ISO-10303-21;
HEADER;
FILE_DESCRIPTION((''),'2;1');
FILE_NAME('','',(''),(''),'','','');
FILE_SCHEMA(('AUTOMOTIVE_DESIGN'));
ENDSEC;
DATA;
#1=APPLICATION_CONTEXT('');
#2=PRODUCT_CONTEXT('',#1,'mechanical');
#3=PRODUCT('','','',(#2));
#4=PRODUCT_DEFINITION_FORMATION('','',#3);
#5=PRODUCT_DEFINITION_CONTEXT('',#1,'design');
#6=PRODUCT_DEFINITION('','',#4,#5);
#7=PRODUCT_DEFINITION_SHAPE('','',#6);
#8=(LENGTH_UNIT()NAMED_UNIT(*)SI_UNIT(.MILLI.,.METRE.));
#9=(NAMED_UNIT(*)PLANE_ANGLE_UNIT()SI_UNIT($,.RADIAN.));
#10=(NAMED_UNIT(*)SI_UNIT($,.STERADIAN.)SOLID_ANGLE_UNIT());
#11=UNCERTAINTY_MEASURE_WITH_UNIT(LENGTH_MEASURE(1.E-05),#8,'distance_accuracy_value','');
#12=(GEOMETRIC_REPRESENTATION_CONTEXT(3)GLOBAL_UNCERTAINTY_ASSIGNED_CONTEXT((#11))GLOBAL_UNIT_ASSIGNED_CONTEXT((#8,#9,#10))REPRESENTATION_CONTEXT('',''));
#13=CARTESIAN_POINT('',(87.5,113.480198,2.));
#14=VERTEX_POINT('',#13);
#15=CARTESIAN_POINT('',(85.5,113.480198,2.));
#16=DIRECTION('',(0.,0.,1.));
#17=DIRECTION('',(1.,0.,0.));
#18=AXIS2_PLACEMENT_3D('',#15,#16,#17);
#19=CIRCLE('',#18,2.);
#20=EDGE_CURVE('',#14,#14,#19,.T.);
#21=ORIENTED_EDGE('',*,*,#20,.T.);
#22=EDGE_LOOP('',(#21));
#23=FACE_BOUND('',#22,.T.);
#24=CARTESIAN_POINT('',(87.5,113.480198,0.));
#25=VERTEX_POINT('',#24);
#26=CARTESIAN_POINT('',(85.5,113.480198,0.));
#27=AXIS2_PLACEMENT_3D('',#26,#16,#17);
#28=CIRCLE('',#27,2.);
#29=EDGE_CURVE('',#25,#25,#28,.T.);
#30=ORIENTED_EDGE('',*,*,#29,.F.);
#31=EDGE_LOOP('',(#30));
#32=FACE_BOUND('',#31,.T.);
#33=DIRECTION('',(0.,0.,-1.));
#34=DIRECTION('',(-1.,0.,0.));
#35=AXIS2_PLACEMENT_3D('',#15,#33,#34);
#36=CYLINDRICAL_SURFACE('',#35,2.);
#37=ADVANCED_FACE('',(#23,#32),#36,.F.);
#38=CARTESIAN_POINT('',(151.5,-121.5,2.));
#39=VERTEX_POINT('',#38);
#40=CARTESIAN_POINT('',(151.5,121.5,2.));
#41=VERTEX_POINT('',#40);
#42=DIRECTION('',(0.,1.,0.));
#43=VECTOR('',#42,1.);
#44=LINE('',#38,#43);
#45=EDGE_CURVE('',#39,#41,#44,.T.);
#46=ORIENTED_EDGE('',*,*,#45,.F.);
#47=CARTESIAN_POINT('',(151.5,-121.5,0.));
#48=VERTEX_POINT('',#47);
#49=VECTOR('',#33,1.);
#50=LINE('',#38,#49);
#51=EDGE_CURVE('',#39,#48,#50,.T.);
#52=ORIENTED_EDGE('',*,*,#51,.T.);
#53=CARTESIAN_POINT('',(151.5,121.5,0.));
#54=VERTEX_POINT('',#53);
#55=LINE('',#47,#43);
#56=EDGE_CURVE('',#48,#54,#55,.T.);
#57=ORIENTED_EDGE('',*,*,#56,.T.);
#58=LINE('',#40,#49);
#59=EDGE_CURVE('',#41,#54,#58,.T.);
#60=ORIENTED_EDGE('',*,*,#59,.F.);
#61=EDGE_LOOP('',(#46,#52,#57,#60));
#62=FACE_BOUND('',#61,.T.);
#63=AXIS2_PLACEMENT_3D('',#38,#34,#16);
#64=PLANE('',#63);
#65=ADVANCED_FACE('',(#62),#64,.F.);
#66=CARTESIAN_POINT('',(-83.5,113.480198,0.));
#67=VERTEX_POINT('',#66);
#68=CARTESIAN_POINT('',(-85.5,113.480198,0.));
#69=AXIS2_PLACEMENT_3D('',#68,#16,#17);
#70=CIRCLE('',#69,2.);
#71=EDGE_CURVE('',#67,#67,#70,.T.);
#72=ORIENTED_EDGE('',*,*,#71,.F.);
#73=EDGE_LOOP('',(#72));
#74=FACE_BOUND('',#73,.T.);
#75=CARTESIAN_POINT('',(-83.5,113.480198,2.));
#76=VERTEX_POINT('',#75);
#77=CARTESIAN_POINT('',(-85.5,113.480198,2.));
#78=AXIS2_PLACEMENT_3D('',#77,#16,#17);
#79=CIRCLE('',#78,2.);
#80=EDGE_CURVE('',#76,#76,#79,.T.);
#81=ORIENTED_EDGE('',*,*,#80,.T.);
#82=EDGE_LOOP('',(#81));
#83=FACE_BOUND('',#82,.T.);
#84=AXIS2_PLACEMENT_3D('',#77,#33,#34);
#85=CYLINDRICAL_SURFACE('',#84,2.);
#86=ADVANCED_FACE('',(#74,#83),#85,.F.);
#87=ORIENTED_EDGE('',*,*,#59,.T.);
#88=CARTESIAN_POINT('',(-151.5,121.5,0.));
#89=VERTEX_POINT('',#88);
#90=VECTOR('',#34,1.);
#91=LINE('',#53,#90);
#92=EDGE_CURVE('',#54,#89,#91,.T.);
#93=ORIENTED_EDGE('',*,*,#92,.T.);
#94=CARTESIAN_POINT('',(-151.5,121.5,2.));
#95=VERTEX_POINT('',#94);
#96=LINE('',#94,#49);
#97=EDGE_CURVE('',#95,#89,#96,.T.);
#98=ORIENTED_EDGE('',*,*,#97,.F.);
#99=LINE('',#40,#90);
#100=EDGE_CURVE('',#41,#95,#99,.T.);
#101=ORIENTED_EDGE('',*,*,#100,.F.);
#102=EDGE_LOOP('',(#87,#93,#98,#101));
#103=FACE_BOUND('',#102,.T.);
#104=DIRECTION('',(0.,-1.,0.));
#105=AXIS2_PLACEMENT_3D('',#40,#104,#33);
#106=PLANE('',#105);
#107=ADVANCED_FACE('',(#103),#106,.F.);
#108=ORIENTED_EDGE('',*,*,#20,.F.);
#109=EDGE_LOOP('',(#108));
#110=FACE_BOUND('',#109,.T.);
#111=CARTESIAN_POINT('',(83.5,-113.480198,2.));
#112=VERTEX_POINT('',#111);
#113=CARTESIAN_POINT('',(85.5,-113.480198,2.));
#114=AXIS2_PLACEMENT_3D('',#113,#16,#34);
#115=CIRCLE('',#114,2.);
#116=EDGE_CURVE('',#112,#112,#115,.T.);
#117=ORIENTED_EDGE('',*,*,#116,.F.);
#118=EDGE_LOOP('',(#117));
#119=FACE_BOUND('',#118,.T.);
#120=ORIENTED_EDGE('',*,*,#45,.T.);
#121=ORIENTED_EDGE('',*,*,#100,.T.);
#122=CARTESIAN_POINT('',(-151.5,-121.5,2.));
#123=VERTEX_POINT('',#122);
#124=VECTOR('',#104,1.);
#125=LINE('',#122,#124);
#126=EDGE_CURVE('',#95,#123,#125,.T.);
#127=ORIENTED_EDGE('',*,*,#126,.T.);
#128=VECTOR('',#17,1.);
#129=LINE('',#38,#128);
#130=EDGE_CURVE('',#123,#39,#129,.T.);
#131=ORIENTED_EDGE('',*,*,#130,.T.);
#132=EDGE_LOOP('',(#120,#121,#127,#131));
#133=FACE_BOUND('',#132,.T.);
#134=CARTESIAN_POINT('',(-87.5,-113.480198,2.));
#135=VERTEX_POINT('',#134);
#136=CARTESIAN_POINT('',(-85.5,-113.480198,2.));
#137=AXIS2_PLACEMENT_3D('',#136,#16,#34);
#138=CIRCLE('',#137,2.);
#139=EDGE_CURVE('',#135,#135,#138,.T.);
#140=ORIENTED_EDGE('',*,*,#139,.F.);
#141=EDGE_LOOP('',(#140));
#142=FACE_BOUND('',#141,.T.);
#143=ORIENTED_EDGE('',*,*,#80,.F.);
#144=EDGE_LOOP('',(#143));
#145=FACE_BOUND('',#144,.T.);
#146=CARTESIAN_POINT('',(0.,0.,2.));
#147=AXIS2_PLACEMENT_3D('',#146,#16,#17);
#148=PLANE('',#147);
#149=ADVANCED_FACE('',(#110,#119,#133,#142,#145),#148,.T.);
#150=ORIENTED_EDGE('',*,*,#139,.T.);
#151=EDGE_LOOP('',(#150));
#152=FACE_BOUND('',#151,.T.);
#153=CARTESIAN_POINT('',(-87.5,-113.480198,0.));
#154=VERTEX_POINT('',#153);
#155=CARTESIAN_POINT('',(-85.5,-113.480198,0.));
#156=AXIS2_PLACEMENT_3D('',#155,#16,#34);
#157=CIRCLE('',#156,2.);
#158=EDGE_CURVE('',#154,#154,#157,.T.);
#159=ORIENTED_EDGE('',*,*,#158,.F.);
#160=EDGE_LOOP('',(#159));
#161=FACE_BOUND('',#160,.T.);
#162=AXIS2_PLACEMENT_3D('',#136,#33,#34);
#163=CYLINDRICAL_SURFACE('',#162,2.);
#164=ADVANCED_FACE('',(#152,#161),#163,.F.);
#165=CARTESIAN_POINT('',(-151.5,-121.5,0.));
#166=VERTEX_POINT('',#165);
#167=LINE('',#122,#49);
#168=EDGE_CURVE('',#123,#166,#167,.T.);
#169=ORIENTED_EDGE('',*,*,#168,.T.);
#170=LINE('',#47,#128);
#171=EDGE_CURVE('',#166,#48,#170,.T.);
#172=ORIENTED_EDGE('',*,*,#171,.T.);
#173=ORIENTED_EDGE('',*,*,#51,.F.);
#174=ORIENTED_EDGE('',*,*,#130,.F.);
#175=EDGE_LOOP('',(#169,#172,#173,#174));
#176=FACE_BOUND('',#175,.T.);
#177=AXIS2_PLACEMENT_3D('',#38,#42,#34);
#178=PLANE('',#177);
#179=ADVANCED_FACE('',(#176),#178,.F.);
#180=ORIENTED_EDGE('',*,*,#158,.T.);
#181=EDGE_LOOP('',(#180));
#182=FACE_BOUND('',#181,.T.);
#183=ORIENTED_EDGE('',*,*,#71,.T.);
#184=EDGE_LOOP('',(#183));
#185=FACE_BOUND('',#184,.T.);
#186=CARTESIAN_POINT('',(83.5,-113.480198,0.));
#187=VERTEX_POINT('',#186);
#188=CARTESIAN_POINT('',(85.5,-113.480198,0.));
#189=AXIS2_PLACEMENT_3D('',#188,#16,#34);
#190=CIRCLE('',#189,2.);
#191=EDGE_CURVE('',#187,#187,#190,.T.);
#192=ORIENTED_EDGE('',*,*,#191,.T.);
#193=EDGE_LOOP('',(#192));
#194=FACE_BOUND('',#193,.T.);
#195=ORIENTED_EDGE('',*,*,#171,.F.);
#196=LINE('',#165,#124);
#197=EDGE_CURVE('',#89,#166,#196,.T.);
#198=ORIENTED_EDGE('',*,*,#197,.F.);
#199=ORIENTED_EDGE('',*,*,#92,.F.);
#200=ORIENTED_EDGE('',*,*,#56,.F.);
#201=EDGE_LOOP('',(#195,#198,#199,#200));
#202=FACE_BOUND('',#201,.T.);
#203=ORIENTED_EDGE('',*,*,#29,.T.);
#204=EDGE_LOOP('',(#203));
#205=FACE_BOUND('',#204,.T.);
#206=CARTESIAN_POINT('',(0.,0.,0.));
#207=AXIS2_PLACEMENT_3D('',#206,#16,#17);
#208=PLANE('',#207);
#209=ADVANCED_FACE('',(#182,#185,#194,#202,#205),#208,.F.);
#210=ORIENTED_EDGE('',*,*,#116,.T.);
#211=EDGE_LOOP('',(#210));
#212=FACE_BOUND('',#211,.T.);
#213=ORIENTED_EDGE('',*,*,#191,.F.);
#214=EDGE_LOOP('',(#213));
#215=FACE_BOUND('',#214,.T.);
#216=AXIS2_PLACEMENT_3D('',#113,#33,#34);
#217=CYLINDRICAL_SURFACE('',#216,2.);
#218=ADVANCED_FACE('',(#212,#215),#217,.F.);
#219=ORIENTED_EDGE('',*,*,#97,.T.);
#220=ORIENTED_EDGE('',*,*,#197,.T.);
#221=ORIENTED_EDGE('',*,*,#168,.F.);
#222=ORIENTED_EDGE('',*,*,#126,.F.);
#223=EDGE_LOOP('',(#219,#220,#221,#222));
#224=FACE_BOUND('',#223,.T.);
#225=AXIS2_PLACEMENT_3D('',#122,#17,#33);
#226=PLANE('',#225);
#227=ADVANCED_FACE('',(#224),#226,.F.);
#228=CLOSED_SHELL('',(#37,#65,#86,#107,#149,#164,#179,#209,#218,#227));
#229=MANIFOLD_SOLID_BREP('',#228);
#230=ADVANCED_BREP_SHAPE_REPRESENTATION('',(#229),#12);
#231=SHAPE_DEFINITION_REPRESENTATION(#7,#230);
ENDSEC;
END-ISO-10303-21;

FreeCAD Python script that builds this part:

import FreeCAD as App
import Part
import Sketcher


def add_polygon(sketch, points):
    """Adds a closed chain of lines whose ends are joined by coincident constraints."""
    first, n = sketch.GeometryCount, len(points)
    for a, b in zip(points, points[1:] + points[:1]):
        sketch.addGeometry(Part.LineSegment(App.Vector(*a, 0), App.Vector(*b, 0)), False)
    for i in range(n):
        sketch.addConstraint(Sketcher.Constraint("Coincident", first + i, 2, first + (i + 1) % n, 1))

doc = App.newDocument("Part")
body = doc.addObject("PartDesign::Body", "Body")

# Sketch on XY plane
sketch1 = body.newObject("Sketcher::SketchObject", "Sketch")
sketch1.AttachmentSupport = (doc.getObject("XY_Plane"), [""])
sketch1.MapMode = "FlatFace"
add_polygon(sketch1, [(-151.5, 121.5), (-151.5, -121.5), (151.5, -121.5), (151.5, 121.5)])  # lines 0-3
sketch1.addGeometry(Part.Circle(App.Vector(-85.5, -113.5, 0), App.Vector(0, 0, 1), 2), False)  # 4
sketch1.addGeometry(Part.Circle(App.Vector(85.5, -113.5, 0), App.Vector(0, 0, 1), 2), False)  # 5
sketch1.addGeometry(Part.Circle(App.Vector(-85.5, 113.5, 0), App.Vector(0, 0, 1), 2), False)  # 6
sketch1.addGeometry(Part.Circle(App.Vector(85.5, 113.5, 0), App.Vector(0, 0, 1), 2), False)  # 7
sketch1.addConstraint(Sketcher.Constraint("Vertical", 0))
sketch1.addConstraint(Sketcher.Constraint("Horizontal", 1))
sketch1.addConstraint(Sketcher.Constraint("Vertical", 2))
sketch1.addConstraint(Sketcher.Constraint("Horizontal", 3))
sketch1.addConstraint(Sketcher.Constraint("Equal", 4, 5))
sketch1.addConstraint(Sketcher.Constraint("Equal", 5, 6))
sketch1.addConstraint(Sketcher.Constraint("Equal", 6, 7))
sketch1.addConstraint(Sketcher.Constraint("Symmetric", 5, 3, 6, 3, -1, 1))
sketch1.addConstraint(Sketcher.Constraint("Symmetric", 4, 3, 7, 3, -1, 1))
sketch1.addConstraint(Sketcher.Constraint("Symmetric", 0, 2, 2, 2, -1, 1))
sketch1.addConstraint(Sketcher.Constraint("Symmetric", 4, 3, 5, 3, -2))
sketch1.addConstraint(Sketcher.Constraint("Diameter", 4, 4.0))
sketch1.addConstraint(Sketcher.Constraint("DistanceX", 1, 1, 1, 2, 303.0))
sketch1.addConstraint(Sketcher.Constraint("DistanceY", 0, 2, 0, 1, 243.0))
sketch1.addConstraint(Sketcher.Constraint("DistanceX", 4, 3, 5, 3, 171.0))
sketch1.addConstraint(Sketcher.Constraint("DistanceY", 4, 3, -1, 1, 113.480198))
pad1 = body.newObject("PartDesign::Pad", "Pad")
pad1.Profile = sketch1
pad1.Length = 2

doc.recompute()
